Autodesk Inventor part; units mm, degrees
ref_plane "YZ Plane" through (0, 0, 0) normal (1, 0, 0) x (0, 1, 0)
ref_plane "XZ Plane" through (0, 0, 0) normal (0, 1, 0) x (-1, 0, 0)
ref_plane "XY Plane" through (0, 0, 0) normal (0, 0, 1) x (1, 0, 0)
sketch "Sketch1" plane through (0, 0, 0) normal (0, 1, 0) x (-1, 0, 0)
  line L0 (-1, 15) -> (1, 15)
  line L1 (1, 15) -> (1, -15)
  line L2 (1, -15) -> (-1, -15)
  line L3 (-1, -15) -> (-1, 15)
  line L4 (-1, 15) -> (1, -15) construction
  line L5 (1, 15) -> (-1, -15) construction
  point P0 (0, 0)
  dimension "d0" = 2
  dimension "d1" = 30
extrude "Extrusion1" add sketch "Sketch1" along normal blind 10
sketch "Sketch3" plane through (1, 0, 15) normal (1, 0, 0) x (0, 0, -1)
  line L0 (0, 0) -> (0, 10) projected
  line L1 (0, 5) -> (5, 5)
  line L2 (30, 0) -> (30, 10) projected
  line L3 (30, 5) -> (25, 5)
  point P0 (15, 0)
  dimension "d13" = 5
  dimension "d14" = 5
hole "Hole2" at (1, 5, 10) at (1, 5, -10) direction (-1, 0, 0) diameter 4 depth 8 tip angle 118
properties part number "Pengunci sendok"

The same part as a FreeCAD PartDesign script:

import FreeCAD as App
import Part
import Sketcher
from FreeCAD import Vector

doc = App.newDocument("Part")
body = doc.addObject("PartDesign::Body", "Body")

sketch1 = body.newObject("Sketcher::SketchObject", "Sketch")
sketch1.AttachmentSupport = (doc.getObject("XZ_Plane"), [""])
sketch1.MapMode = "FlatFace"
sketch1.addGeometry([
    Part.LineSegment(Vector(-1, 15, 0), Vector(1, 15, 0)),
    Part.LineSegment(Vector(1, 15, 0), Vector(1, -15, 0)),
    Part.LineSegment(Vector(1, -15, 0), Vector(-1, -15, 0)),
    Part.LineSegment(Vector(-1, -15, 0), Vector(-1, 15, 0)),
], False)
sketch1.addConstraint([
    Sketcher.Constraint("Coincident", 0, 2, 1, 1),
    Sketcher.Constraint("Coincident", 1, 2, 2, 1),
    Sketcher.Constraint("Coincident", 2, 2, 3, 1),
    Sketcher.Constraint("Coincident", 3, 2, 0, 1),
    Sketcher.Constraint("Horizontal", 0),
    Sketcher.Constraint("Vertical", 1),
    Sketcher.Constraint("Horizontal", 2),
    Sketcher.Constraint("Vertical", 3),
    Sketcher.Constraint("Symmetric", 0, 2, 2, 2, -1, 1),
    Sketcher.Constraint("DistanceX", 0, 1, 0, 2, 2.0),
    Sketcher.Constraint("DistanceY", 1, 2, 1, 1, 30.0),
])
pad1 = body.newObject("PartDesign::Pad", "Pad")
pad1.Profile = sketch1
pad1.Length = 10
pad1.Reversed = True

sketch2 = body.newObject("Sketcher::SketchObject", "Sketch001")
sketch2.AttachmentSupport = (doc.getObject("YZ_Plane"), [""])
sketch2.MapMode = "FlatFace"
sketch2.AttachmentOffset = App.Placement(Vector(0, 0, 1), App.Rotation())
sketch2.addGeometry([
    Part.Circle(Vector(5, 10, 0), Vector(0, 0, 1), 2),
    Part.Circle(Vector(5, -10, 0), Vector(0, 0, 1), 2),
], False)
sketch2.addConstraint([
    Sketcher.Constraint("Equal", 0, 1),
    Sketcher.Constraint("Symmetric", 0, 3, 1, 3, -1),
    Sketcher.Constraint("Diameter", 0, 4.0),
    Sketcher.Constraint("DistanceX", -1, 1, 0, 3, 5.0),
    Sketcher.Constraint("DistanceY", -1, 1, 0, 3, 10.0),
])
doc.recompute()
hole = body.newObject("PartDesign::Hole", "Hole")
hole.Profile = sketch2
hole.ThreadType = "None"
hole.Diameter = 4
hole.DepthType = "Dimension"
hole.Depth = 8
hole.DrillPoint = "Angled"
hole.DrillPointAngle = 118

doc.recompute()
